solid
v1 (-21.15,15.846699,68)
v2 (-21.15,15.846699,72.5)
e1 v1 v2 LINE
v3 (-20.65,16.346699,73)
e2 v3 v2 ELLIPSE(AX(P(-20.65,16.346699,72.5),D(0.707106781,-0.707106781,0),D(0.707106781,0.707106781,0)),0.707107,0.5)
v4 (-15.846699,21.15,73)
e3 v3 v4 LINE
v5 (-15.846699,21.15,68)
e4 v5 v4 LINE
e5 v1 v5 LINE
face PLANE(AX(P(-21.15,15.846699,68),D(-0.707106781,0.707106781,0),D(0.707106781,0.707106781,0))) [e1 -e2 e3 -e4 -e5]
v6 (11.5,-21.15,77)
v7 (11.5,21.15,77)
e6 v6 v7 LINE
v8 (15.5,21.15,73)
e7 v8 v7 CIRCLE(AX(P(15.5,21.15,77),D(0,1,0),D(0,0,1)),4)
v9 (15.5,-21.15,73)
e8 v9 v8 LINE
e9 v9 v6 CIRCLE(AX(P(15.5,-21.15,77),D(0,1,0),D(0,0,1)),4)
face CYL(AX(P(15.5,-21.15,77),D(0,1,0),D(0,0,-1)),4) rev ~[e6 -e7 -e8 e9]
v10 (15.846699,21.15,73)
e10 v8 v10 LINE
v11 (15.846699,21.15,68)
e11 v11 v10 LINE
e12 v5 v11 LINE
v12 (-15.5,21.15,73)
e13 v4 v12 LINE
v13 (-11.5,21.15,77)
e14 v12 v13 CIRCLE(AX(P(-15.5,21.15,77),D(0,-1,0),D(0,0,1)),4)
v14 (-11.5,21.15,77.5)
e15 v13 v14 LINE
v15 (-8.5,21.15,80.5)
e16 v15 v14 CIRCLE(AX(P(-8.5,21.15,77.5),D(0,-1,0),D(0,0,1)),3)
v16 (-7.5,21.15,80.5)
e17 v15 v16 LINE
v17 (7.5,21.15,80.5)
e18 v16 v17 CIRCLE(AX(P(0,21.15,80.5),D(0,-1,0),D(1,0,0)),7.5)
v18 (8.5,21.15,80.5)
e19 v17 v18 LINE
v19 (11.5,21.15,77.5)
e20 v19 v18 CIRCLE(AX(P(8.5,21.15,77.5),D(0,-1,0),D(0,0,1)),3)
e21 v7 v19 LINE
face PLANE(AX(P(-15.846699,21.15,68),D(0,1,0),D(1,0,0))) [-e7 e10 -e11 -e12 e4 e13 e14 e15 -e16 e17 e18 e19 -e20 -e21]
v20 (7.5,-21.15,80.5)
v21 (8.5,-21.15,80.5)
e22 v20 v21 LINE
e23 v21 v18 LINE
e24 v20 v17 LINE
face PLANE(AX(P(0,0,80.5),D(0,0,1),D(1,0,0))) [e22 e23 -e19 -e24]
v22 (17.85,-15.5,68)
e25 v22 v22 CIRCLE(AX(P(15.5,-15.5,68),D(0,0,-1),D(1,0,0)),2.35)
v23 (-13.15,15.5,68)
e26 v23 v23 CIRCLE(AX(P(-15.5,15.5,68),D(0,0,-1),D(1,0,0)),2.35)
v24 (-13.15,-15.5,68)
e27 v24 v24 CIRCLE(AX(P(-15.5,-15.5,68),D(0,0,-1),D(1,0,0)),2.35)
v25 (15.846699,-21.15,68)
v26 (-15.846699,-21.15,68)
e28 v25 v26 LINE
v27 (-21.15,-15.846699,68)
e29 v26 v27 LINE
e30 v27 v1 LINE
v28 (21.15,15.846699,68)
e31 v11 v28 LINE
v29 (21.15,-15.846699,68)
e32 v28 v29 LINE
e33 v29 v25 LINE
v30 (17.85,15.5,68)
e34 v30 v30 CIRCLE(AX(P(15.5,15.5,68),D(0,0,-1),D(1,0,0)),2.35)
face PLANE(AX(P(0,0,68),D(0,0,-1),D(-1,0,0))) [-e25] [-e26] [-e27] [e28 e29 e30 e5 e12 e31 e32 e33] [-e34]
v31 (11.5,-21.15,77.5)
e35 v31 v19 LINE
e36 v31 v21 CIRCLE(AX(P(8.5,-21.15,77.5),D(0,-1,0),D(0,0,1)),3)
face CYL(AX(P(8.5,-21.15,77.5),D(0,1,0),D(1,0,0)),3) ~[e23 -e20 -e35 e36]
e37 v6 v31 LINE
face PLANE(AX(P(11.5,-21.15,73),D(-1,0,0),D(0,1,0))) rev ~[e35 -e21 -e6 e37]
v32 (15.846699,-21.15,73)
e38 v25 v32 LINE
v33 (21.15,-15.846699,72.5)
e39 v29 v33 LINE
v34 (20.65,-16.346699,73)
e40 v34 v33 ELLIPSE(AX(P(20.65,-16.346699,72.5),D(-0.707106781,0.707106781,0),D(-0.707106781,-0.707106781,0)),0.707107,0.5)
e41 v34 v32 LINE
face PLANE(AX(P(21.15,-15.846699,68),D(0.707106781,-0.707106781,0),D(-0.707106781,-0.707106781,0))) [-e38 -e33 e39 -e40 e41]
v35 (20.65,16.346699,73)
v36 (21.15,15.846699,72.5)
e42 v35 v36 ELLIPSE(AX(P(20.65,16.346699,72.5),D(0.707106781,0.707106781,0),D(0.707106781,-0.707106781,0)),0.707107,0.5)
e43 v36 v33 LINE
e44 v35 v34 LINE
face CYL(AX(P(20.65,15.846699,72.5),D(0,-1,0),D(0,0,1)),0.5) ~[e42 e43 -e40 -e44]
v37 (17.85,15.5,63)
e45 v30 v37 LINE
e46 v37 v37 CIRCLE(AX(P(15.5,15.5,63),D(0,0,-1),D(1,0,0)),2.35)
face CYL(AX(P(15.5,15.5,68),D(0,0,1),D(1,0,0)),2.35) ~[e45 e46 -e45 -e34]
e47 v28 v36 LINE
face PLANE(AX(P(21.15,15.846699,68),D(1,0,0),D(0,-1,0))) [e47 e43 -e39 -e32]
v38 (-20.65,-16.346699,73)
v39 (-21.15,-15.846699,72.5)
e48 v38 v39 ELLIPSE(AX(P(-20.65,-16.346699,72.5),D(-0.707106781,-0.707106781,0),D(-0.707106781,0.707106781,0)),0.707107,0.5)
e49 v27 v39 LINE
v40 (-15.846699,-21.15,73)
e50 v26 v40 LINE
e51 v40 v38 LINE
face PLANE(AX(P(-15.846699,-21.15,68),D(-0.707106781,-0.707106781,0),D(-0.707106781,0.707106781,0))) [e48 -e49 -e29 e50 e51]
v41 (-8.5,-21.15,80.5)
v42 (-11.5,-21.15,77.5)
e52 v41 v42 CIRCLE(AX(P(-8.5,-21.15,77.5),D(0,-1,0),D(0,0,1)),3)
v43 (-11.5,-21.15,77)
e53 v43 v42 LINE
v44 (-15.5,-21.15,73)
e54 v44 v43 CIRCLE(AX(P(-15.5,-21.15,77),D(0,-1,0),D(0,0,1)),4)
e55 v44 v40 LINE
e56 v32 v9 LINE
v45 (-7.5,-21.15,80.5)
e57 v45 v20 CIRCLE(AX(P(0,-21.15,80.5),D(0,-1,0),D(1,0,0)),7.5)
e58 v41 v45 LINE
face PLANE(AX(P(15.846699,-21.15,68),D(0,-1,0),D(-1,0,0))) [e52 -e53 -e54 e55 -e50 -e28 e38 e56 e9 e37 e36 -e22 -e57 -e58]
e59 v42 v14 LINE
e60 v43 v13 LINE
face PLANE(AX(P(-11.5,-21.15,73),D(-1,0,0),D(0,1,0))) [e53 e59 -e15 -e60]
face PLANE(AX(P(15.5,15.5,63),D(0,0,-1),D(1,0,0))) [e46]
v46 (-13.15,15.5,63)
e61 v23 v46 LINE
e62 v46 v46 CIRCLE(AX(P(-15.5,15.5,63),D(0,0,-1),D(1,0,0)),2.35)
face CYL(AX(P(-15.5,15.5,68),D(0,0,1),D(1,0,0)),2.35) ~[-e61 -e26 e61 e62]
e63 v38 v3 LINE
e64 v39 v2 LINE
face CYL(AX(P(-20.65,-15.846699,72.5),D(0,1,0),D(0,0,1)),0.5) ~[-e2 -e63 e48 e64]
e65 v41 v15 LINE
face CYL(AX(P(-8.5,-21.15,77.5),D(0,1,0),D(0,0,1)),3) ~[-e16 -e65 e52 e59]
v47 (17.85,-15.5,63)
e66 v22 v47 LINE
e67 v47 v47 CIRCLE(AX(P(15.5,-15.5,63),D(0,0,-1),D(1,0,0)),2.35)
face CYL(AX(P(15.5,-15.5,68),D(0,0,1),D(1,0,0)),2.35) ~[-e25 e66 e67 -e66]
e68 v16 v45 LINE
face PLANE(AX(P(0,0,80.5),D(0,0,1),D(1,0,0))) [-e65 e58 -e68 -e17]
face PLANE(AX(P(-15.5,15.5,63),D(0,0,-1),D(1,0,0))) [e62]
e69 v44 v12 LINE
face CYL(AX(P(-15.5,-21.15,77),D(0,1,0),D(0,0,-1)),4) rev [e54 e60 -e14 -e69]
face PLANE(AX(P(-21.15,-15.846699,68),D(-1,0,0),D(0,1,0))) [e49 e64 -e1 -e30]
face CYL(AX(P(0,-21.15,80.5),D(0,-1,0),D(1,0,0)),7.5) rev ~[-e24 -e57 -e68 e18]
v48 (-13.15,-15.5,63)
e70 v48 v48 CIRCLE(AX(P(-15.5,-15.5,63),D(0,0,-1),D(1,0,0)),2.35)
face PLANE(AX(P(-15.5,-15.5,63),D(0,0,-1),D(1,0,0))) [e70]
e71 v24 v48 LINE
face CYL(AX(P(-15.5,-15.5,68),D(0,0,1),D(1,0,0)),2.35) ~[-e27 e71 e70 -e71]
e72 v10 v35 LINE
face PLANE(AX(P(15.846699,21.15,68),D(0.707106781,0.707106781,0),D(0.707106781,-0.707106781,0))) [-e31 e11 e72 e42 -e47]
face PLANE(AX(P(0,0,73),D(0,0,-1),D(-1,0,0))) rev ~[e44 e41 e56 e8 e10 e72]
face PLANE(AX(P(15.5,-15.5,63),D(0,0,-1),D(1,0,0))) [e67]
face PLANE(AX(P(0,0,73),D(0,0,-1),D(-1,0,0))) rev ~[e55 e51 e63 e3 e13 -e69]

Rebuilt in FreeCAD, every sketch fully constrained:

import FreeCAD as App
import Part
import Sketcher

V = App.Vector


def edges_at(feature, points):
    """Names of the edges that pass closest to the given points."""
    edges = feature.Shape.Edges
    near = lambda p: min(range(len(edges)), key=lambda i: edges[i].distToShape(Part.Vertex(*p))[0])
    return sorted({f"Edge{near(p) + 1}" for p in points})

doc = App.newDocument("Part")
body = doc.addObject("PartDesign::Body", "Body")

# Sketch on XY plane
sketch1 = body.newObject("Sketcher::SketchObject", "Sketch")
sketch1.AttachmentSupport = (doc.getObject("XY_Plane"), [""])
sketch1.MapMode = "FlatFace"
sketch1.AttachmentOffset = App.Placement(V(0, 0, 68), App.Rotation())
sketch1.addGeometry(Part.LineSegment(V(-15.846699, 21.15, 0), V(-21.15, 15.846699, 0)), False)
sketch1.addGeometry(Part.LineSegment(V(-21.15, 15.846699, 0), V(-21.15, -15.846699, 0)), False)
sketch1.addGeometry(Part.LineSegment(V(-21.15, -15.846699, 0), V(-15.846699, -21.15, 0)), False)
sketch1.addGeometry(Part.LineSegment(V(-15.846699, -21.15, 0), V(15.846699, -21.15, 0)), False)
sketch1.addGeometry(Part.LineSegment(V(15.846699, -21.15, 0), V(21.15, -15.846699, 0)), False)
sketch1.addGeometry(Part.LineSegment(V(21.15, -15.846699, 0), V(21.15, 15.846699, 0)), False)
sketch1.addGeometry(Part.LineSegment(V(21.15, 15.846699, 0), V(15.846699, 21.15, 0)), False)
sketch1.addGeometry(Part.LineSegment(V(15.846699, 21.15, 0), V(-15.846699, 21.15, 0)), False)
sketch1.addConstraint(Sketcher.Constraint("Coincident", 0, 2, 1, 1))
sketch1.addConstraint(Sketcher.Constraint("Coincident", 1, 2, 2, 1))
sketch1.addConstraint(Sketcher.Constraint("Coincident", 2, 2, 3, 1))
sketch1.addConstraint(Sketcher.Constraint("Coincident", 3, 2, 4, 1))
sketch1.addConstraint(Sketcher.Constraint("Coincident", 4, 2, 5, 1))
sketch1.addConstraint(Sketcher.Constraint("Coincident", 5, 2, 6, 1))
sketch1.addConstraint(Sketcher.Constraint("Coincident", 6, 2, 7, 1))
sketch1.addConstraint(Sketcher.Constraint("Coincident", 7, 2, 0, 1))
sketch1.addConstraint(Sketcher.Constraint("Vertical", 1))
sketch1.addConstraint(Sketcher.Constraint("Horizontal", 3))
sketch1.addConstraint(Sketcher.Constraint("Vertical", 5))
sketch1.addConstraint(Sketcher.Constraint("Horizontal", 7))
sketch1.addConstraint(Sketcher.Constraint("Symmetric", 0, 2, 4, 2, -1, 1))
sketch1.addConstraint(Sketcher.Constraint("Symmetric", 2, 2, 6, 2, -1, 1))
sketch1.addConstraint(Sketcher.Constraint("Perpendicular", 0, 2))
sketch1.addConstraint(Sketcher.Constraint("Perpendicular", 2, 4))
sketch1.addConstraint(Sketcher.Constraint("Perpendicular", 4, 6))
sketch1.addConstraint(Sketcher.Constraint("Horizontal", 1, 2, 4, 2))
sketch1.addConstraint(Sketcher.Constraint("Vertical", 3, 2, 6, 2))
sketch1.addConstraint(Sketcher.Constraint("Equal", 7, 1))
sketch1.addConstraint(Sketcher.Constraint("Distance", 0, 7.5))
sketch1.addConstraint(Sketcher.Constraint("DistanceX", 1, 2, 4, 2, 42.3))
pad1 = body.newObject("PartDesign::Pad", "Pad")
pad1.Profile = sketch1
pad1.Length = 5

# Sketch on XY plane
sketch2 = body.newObject("Sketcher::SketchObject", "Sketch001")
sketch2.AttachmentSupport = (doc.getObject("XY_Plane"), [""])
sketch2.MapMode = "FlatFace"
sketch2.AttachmentOffset = App.Placement(V(0, 0, 68), App.Rotation())
sketch2.addGeometry(Part.Circle(V(15.5, -15.5, 0), V(0, 0, 1), 2.35), False)
sketch2.addGeometry(Part.Circle(V(15.5, 15.5, 0), V(0, 0, 1), 2.35), False)
sketch2.addGeometry(Part.Circle(V(-15.5, 15.5, 0), V(0, 0, 1), 2.35), False)
sketch2.addGeometry(Part.Circle(V(-15.5, -15.5, 0), V(0, 0, 1), 2.35), False)
sketch2.addConstraint(Sketcher.Constraint("Equal", 0, 1))
sketch2.addConstraint(Sketcher.Constraint("Equal", 1, 2))
sketch2.addConstraint(Sketcher.Constraint("Equal", 2, 3))
sketch2.addConstraint(Sketcher.Constraint("Symmetric", 0, 3, 2, 3, -1, 1))
sketch2.addConstraint(Sketcher.Constraint("Symmetric", 1, 3, 3, 3, -1, 1))
sketch2.addConstraint(Sketcher.Constraint("Symmetric", 1, 3, 2, 3, -2))
sketch2.addConstraint(Sketcher.Constraint("Diameter", 0, 4.7))
sketch2.addConstraint(Sketcher.Constraint("DistanceY", 0, 3, 1, 3, 31.0))
sketch2.addConstraint(Sketcher.Constraint("DistanceX", 2, 3, 1, 3, 31.0))
pad2 = body.newObject("PartDesign::Pad", "Pad001")
pad2.Profile = sketch2
pad2.Length = 5
pad2.Reversed = True

# Sketch on XY plane
sketch3 = body.newObject("Sketcher::SketchObject", "Sketch002")
sketch3.AttachmentSupport = (doc.getObject("XY_Plane"), [""])
sketch3.MapMode = "FlatFace"
sketch3.AttachmentOffset = App.Placement(V(0, 0, 73), App.Rotation())
sketch3.addGeometry(Part.LineSegment(V(-11.5, 21.15, 0), V(-11.5, -21.15, 0)), False)
sketch3.addGeometry(Part.LineSegment(V(-11.5, -21.15, 0), V(11.5, -21.15, 0)), False)
sketch3.addGeometry(Part.LineSegment(V(11.5, -21.15, 0), V(11.5, 21.15, 0)), False)
sketch3.addGeometry(Part.LineSegment(V(11.5, 21.15, 0), V(-11.5, 21.15, 0)), False)
sketch3.addConstraint(Sketcher.Constraint("Coincident", 0, 2, 1, 1))
sketch3.addConstraint(Sketcher.Constraint("Coincident", 1, 2, 2, 1))
sketch3.addConstraint(Sketcher.Constraint("Coincident", 2, 2, 3, 1))
sketch3.addConstraint(Sketcher.Constraint("Coincident", 3, 2, 0, 1))
sketch3.addConstraint(Sketcher.Constraint("Vertical", 0))
sketch3.addConstraint(Sketcher.Constraint("Horizontal", 1))
sketch3.addConstraint(Sketcher.Constraint("Vertical", 2))
sketch3.addConstraint(Sketcher.Constraint("Horizontal", 3))
sketch3.addConstraint(Sketcher.Constraint("Symmetric", 0, 2, 2, 2, -1, 1))
sketch3.addConstraint(Sketcher.Constraint("DistanceX", 1, 1, 1, 2, 23.0))
sketch3.addConstraint(Sketcher.Constraint("DistanceY", 0, 2, 0, 1, 42.3))
pad3 = body.newObject("PartDesign::Pad", "Pad002")
pad3.Profile = sketch3
pad3.Length = 7.5

# Sketch on XZ plane
sketch4 = body.newObject("Sketcher::SketchObject", "Sketch003")
sketch4.AttachmentSupport = (doc.getObject("XZ_Plane"), [""])
sketch4.MapMode = "FlatFace"
sketch4.AttachmentOffset = App.Placement(V(0, 0, 21.15), App.Rotation())
sketch4.addGeometry(Part.Circle(V(0, 80.5, 0), V(0, 0, 1), 7.5), False)
sketch4.addConstraint(Sketcher.Constraint("PointOnObject", 0, 3, -2))
sketch4.addConstraint(Sketcher.Constraint("Diameter", 0, 15.0))
sketch4.addConstraint(Sketcher.Constraint("DistanceY", -1, 1, 0, 3, 80.5))
pocket1 = body.newObject("PartDesign::Pocket", "Pocket")
pocket1.Profile = sketch4
pocket1.Length = 100
doc.recompute()

fillet = body.newObject("PartDesign::Fillet", "Fillet")
fillet.Base = (pocket1, edges_at(pocket1, [(11.5, 0, 73), (-11.5, 0, 73)]))
fillet.Radius = 4
doc.recompute()

fillet2 = body.newObject("PartDesign::Fillet", "Fillet001")
fillet2.Base = (fillet, edges_at(fillet, [(-11.5, 0, 80.5), (11.5, 0, 80.5)]))
fillet2.Radius = 3
doc.recompute()

fillet3 = body.newObject("PartDesign::Fillet", "Fillet002")
fillet3.Base = (fillet2, edges_at(fillet2, [(21.15, 0, 73), (-21.15, 0, 73)]))
fillet3.Radius = 0.5

doc.recompute()
